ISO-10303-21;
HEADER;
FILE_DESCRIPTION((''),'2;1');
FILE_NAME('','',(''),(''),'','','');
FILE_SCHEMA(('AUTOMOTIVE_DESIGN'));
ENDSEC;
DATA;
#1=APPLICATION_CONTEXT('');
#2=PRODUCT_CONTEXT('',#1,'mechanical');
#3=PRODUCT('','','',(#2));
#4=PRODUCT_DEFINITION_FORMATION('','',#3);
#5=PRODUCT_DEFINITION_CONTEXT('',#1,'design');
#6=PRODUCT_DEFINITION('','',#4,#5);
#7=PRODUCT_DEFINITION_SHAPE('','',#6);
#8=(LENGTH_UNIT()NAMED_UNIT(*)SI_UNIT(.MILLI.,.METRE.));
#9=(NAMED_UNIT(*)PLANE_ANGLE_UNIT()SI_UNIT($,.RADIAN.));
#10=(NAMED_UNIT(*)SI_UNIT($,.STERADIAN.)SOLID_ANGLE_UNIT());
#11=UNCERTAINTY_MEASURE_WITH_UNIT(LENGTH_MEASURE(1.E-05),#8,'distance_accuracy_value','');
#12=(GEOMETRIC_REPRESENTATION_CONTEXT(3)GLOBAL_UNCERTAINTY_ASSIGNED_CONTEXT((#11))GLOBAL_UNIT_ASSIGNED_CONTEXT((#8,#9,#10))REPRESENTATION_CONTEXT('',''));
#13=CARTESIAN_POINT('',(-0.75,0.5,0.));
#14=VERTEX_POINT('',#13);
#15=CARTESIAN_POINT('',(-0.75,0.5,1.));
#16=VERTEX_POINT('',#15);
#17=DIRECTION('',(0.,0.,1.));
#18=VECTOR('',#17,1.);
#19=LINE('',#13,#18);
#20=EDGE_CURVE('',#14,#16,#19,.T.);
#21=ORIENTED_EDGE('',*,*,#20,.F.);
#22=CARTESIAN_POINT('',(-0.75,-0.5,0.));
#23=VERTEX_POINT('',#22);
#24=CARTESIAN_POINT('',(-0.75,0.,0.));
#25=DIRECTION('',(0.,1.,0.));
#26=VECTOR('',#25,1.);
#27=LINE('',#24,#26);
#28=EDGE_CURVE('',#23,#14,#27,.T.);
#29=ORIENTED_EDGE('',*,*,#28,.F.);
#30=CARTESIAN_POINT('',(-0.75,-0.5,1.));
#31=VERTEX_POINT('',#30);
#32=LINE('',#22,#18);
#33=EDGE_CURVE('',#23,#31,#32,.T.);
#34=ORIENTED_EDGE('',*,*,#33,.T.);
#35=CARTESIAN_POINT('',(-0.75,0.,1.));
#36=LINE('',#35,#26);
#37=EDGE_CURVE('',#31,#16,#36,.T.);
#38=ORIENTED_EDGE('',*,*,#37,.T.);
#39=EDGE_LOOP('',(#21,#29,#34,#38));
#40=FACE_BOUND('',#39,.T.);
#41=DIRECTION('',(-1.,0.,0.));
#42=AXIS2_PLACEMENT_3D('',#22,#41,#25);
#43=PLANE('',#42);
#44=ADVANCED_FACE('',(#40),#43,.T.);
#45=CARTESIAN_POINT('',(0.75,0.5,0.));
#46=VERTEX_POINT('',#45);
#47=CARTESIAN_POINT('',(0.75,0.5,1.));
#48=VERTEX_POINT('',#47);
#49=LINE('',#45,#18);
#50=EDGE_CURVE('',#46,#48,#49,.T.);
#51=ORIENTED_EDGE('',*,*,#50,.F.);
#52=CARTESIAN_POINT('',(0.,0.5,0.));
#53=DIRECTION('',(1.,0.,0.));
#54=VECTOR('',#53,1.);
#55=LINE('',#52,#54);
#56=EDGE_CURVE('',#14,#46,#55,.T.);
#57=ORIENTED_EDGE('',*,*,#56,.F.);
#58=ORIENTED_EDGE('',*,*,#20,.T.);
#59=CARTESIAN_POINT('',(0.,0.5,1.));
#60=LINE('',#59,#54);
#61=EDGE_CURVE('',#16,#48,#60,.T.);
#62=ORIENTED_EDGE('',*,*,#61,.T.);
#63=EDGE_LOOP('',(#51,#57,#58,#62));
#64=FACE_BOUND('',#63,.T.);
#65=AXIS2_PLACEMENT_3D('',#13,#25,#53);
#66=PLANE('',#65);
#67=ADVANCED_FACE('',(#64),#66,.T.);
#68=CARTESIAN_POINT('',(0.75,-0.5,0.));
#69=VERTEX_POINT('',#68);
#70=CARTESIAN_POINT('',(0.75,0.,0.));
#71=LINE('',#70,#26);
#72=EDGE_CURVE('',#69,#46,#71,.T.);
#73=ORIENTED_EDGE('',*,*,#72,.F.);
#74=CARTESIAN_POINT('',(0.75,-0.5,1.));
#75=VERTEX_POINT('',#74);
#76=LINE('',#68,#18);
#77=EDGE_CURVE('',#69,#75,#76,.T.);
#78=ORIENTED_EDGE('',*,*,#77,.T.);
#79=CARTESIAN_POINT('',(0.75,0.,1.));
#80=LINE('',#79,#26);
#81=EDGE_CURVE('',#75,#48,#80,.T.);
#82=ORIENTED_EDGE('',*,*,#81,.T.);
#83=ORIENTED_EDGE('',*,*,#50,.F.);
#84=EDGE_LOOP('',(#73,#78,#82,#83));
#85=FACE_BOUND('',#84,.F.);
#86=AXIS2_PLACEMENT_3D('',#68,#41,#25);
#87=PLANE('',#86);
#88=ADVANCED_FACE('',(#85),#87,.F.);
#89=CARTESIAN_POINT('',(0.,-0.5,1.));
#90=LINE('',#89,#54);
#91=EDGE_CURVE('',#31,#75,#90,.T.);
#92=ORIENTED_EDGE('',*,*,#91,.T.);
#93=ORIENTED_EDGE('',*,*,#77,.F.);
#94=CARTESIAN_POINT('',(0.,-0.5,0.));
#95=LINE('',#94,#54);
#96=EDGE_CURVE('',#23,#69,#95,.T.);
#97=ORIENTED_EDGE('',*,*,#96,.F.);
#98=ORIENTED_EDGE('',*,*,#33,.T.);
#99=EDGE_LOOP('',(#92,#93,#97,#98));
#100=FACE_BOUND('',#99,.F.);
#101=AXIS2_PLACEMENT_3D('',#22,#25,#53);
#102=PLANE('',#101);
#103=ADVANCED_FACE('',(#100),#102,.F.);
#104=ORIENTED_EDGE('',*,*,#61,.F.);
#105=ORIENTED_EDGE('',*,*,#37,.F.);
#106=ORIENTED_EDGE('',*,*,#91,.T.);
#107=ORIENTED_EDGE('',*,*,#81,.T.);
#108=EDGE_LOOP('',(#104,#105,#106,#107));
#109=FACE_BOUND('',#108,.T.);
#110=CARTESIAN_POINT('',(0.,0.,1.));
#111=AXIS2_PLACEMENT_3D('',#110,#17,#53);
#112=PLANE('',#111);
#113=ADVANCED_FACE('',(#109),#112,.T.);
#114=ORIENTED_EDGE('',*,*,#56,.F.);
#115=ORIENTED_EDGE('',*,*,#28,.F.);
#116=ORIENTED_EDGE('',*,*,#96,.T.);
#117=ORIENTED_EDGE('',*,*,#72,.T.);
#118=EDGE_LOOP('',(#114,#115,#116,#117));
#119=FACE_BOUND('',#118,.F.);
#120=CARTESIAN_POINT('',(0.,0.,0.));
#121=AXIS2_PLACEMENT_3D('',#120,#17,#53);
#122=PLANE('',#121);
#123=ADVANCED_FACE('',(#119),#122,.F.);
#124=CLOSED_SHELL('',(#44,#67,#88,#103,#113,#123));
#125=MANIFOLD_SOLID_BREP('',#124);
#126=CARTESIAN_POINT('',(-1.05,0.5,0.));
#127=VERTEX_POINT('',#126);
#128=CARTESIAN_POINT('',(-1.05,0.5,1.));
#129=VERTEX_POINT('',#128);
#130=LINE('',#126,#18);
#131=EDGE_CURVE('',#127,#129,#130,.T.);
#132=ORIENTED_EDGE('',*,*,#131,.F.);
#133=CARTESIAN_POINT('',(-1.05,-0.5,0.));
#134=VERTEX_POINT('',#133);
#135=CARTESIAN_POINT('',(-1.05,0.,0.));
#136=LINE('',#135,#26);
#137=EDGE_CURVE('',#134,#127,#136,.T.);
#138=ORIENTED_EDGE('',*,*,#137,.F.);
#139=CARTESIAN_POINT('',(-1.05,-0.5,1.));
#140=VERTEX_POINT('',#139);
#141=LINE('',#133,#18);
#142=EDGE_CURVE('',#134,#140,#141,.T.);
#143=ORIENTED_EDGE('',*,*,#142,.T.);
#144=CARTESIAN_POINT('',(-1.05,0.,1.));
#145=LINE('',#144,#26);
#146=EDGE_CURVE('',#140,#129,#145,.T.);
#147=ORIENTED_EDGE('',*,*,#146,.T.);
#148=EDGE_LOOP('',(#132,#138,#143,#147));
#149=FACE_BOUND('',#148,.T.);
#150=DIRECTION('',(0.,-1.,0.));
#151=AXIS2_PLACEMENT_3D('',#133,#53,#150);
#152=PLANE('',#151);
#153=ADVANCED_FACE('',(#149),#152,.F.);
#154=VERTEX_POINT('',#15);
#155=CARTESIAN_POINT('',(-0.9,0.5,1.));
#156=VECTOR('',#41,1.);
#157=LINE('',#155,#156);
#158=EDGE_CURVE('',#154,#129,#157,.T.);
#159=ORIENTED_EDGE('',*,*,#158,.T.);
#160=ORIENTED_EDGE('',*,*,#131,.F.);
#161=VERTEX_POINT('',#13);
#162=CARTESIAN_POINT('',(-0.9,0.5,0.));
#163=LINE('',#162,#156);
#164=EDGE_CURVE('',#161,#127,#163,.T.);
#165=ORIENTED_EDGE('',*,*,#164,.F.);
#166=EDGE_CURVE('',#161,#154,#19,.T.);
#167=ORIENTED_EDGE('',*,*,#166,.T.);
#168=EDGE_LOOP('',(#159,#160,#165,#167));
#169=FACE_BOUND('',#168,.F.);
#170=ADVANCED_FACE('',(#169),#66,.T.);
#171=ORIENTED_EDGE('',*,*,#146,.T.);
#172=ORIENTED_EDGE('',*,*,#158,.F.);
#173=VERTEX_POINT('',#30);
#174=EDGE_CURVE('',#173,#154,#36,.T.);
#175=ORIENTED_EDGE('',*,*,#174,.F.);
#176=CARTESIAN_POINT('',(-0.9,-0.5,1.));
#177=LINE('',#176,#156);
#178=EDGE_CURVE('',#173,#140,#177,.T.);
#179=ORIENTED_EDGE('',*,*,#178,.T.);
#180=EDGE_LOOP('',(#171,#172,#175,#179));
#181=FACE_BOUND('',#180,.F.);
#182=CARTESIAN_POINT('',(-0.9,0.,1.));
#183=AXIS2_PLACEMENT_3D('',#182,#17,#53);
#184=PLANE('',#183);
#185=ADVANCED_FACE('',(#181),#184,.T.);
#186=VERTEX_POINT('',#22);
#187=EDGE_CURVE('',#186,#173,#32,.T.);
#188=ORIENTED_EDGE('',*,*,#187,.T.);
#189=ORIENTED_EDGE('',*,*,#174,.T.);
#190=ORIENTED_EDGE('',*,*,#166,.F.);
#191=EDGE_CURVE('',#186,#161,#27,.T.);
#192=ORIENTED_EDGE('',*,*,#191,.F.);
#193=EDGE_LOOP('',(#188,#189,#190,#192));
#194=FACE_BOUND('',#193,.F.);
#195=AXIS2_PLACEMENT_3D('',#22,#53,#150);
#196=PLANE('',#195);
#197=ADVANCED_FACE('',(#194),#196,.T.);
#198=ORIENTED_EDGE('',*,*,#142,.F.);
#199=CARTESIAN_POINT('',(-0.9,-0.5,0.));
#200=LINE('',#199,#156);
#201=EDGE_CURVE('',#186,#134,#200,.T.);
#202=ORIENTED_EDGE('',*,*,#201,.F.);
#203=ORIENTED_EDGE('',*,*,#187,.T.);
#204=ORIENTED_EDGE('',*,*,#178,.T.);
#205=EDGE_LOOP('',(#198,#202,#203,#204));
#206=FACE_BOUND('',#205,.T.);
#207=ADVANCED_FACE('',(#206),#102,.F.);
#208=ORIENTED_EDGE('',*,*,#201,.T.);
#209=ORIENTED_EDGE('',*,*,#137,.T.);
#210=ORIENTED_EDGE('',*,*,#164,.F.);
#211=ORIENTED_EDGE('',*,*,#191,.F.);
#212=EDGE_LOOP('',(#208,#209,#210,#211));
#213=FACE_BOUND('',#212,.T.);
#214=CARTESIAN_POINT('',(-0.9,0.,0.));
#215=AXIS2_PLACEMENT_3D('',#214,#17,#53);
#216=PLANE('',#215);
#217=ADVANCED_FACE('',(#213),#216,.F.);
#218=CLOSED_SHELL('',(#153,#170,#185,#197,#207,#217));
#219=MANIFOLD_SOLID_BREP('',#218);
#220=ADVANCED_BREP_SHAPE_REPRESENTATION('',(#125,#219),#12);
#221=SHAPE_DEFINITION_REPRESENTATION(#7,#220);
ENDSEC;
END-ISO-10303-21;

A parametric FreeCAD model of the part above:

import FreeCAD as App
import Part
import Sketcher
from FreeCAD import Vector
Q = App.Units.Quantity

doc = App.newDocument("Part")
body = doc.addObject("PartDesign::Body", "Body")

sketch1 = doc.addObject("Sketcher::SketchObject", "Sketch")
body.addObject(sketch1)
sketch1.AttachmentSupport = (doc.XY_Plane, [""])
sketch1.MapMode = "FlatFace"
sketch1.addGeometry([
    Part.LineSegment(Vector(-0.75, 0.5, 0), Vector(-0.75, -0.5, 0)),
    Part.LineSegment(Vector(-0.75, -0.5, 0), Vector(0.75, -0.5, 0)),
    Part.LineSegment(Vector(0.75, -0.5, 0), Vector(0.75, 0.5, 0)),
    Part.LineSegment(Vector(0.75, 0.5, 0), Vector(-0.75, 0.5, 0)),
], False)
sketch1.addConstraint([
    Sketcher.Constraint("Coincident", 0, 2, 1, 1),
    Sketcher.Constraint("Coincident", 1, 2, 2, 1),
    Sketcher.Constraint("Coincident", 2, 2, 3, 1),
    Sketcher.Constraint("Coincident", 3, 2, 0, 1),
    Sketcher.Constraint("Vertical", 0),
    Sketcher.Constraint("Horizontal", 1),
    Sketcher.Constraint("Vertical", 2),
    Sketcher.Constraint("Horizontal", 3),
    Sketcher.Constraint("Symmetric", 0, 2, 2, 2, -1, 1),
    Sketcher.Constraint("DistanceY", 0, 2, 0, 1, Q("1 mm")),
    Sketcher.Constraint("DistanceX", 1, 1, 1, 2, Q("1.5 mm")),
])
pad1 = doc.addObject("PartDesign::Pad", "Pad")
body.addObject(pad1)
pad1.Profile = sketch1
pad1.Length = 1
body2 = doc.addObject("PartDesign::Body", "Body001")

sketch2 = doc.addObject("Sketcher::SketchObject", "Sketch001")
body2.addObject(sketch2)
sketch2.AttachmentSupport = (doc.getObject("XY_Plane001"), [""])
sketch2.MapMode = "FlatFace"
sketch2.addGeometry([
    Part.LineSegment(Vector(0.75, 0.5, 0), Vector(0.75, -0.5, 0)),
    Part.LineSegment(Vector(0.75, -0.5, 0), Vector(1.05, -0.5, 0)),
    Part.LineSegment(Vector(1.05, -0.5, 0), Vector(1.05, 0.5, 0)),
    Part.LineSegment(Vector(1.05, 0.5, 0), Vector(0.75, 0.5, 0)),
], False)
sketch2.addConstraint([
    Sketcher.Constraint("Coincident", 0, 2, 1, 1),
    Sketcher.Constraint("Coincident", 1, 2, 2, 1),
    Sketcher.Constraint("Coincident", 2, 2, 3, 1),
    Sketcher.Constraint("Coincident", 3, 2, 0, 1),
    Sketcher.Constraint("Vertical", 0),
    Sketcher.Constraint("Horizontal", 1),
    Sketcher.Constraint("Vertical", 2),
    Sketcher.Constraint("Horizontal", 3),
    Sketcher.Constraint("DistanceY", 0, 2, 0, 1, Q("1 mm")),
    Sketcher.Constraint("DistanceX", 1, 1, 1, 2, Q("0.3 mm")),
    Sketcher.Constraint("DistanceY", 0, 2, -1, 1, Q("0.5 mm")),
    Sketcher.Constraint("DistanceX", -1, 1, 0, 2, Q("0.75 mm")),
])
pad2 = doc.addObject("PartDesign::Pad", "Pad001")
body2.addObject(pad2)
pad2.Profile = sketch2
pad2.Length = 1
body3 = doc.addObject("PartDesign::Body", "Body002")
doc.recompute()

mirroring = doc.addObject("Part::Mirroring", "Mirroring")
mirroring.Source = body2
mirroring.Base = Vector(0, 0, 0)
mirroring.Normal = Vector(1, 0, 0)
body3.BaseFeature = mirroring
doc.recompute()
body2.Visibility = False
mirroring.Visibility = False

doc.recompute()
